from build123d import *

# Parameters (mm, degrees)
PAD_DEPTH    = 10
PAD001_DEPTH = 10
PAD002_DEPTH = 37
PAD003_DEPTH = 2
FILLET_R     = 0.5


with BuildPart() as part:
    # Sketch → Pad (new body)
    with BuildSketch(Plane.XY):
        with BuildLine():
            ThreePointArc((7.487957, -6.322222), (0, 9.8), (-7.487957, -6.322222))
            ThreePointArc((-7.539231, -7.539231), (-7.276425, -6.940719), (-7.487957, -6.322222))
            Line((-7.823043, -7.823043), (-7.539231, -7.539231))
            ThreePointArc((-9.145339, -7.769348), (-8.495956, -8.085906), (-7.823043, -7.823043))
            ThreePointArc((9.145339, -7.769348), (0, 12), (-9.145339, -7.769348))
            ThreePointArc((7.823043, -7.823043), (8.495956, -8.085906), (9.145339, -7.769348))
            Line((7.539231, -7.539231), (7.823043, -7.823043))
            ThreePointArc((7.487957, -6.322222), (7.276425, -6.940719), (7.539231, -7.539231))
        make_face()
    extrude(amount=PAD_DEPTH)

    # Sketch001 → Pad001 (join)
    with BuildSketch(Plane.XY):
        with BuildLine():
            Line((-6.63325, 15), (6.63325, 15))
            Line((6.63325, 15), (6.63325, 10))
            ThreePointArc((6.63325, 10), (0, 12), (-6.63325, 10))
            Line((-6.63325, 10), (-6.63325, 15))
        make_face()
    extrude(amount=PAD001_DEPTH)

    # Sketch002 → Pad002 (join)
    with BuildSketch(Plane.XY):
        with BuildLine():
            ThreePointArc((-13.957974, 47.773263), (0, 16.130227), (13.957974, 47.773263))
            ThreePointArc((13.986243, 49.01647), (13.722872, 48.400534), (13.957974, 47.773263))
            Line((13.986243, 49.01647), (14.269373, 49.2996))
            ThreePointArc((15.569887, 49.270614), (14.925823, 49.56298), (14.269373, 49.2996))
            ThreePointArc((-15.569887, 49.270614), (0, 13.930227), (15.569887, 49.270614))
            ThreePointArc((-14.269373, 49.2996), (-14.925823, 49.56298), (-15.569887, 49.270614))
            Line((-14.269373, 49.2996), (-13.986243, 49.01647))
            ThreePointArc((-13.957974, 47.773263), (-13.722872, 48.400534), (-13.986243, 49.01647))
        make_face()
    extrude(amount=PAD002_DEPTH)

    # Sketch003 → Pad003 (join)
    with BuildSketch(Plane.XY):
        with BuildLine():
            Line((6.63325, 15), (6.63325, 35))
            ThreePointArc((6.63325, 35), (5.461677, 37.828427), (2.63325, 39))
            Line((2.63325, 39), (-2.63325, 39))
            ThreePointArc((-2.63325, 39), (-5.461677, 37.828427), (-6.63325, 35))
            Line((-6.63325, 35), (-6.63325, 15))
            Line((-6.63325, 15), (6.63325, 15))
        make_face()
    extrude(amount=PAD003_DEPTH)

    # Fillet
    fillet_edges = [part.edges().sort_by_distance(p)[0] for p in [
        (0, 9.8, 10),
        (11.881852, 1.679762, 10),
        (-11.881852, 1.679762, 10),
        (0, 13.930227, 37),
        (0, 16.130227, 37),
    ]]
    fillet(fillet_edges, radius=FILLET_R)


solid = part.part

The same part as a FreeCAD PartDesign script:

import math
import FreeCAD as App
import Part
import Sketcher

V = App.Vector


def edges_at(feature, points):
    """Names of the edges that pass closest to the given points."""
    edges = feature.Shape.Edges
    near = lambda p: min(range(len(edges)), key=lambda i: edges[i].distToShape(Part.Vertex(*p))[0])
    return sorted({f"Edge{near(p) + 1}" for p in points})

doc = App.newDocument("Part")
body = doc.addObject("PartDesign::Body", "Body")

# Sketch on XY plane
sketch1 = body.newObject("Sketcher::SketchObject", "Sketch")
sketch1.AttachmentSupport = (doc.getObject("XY_Plane"), [""])
sketch1.MapMode = "FlatFace"
sketch1.addGeometry(Part.ArcOfCircle(Part.Circle(V(0, 0, 0), V(0, 0, 1), 9.8), math.radians(-40), math.radians(220)), False)
sketch1.addGeometry(Part.ArcOfCircle(Part.Circle(V(8.18, -6.9, 0), V(0, 0, 1), 0.9), math.radians(140), math.radians(225)), False)
sketch1.addGeometry(Part.LineSegment(V(7.54, -7.54, 0), V(7.82, -7.82, 0)), False)
sketch1.addGeometry(Part.ArcOfCircle(Part.Circle(V(8.46, -7.19, 0), V(0, 0, 1), 0.9), math.radians(-135), math.radians(-40)), False)
sketch1.addGeometry(Part.ArcOfCircle(Part.Circle(V(0, 0, 0), V(0, 0, 1), 12), math.radians(-40), math.radians(220)), False)
sketch1.addGeometry(Part.ArcOfCircle(Part.Circle(V(-8.46, -7.19, 0), V(0, 0, 1), 0.9), math.radians(-140), math.radians(-45)), False)
sketch1.addGeometry(Part.LineSegment(V(-7.82, -7.82, 0), V(-7.54, -7.54, 0)), False)
sketch1.addGeometry(Part.ArcOfCircle(Part.Circle(V(-8.18, -6.9, 0), V(0, 0, 1), 0.9), math.radians(-45), math.radians(40)), False)
sketch1.addConstraint(Sketcher.Constraint("Coincident", 0, 1, 1, 1))
sketch1.addConstraint(Sketcher.Constraint("Tangent", 1, 2, 2, 1))
sketch1.addConstraint(Sketcher.Constraint("Tangent", 2, 2, 3, 1))
sketch1.addConstraint(Sketcher.Constraint("Tangent", 3, 2, 4, 1))
sketch1.addConstraint(Sketcher.Constraint("Tangent", 4, 2, 5, 1))
sketch1.addConstraint(Sketcher.Constraint("Tangent", 5, 2, 6, 1))
sketch1.addConstraint(Sketcher.Constraint("Tangent", 6, 2, 7, 1))
sketch1.addConstraint(Sketcher.Constraint("Coincident", 7, 2, 0, 2))
sketch1.addConstraint(Sketcher.Constraint("Coincident", 0, 3, -1, 1))
sketch1.addConstraint(Sketcher.Constraint("Coincident", 4, 3, -1, 1))
sketch1.addConstraint(Sketcher.Constraint("Equal", 3, 5))
sketch1.addConstraint(Sketcher.Constraint("Equal", 1, 7))
sketch1.addConstraint(Sketcher.Constraint("Symmetric", 2, 2, 5, 2, -2))
sketch1.addConstraint(Sketcher.Constraint("Perpendicular", 2, 6))
sketch1.addConstraint(Sketcher.Constraint("Horizontal", 0, 1, 7, 2))
sketch1.addConstraint(Sketcher.Constraint("Radius", 4, 12.0))
sketch1.addConstraint(Sketcher.Constraint("Radius", 0, 9.8))
sketch1.addConstraint(Sketcher.Constraint("Radius", 3, 0.899999))
sketch1.addConstraint(Sketcher.Constraint("Radius", 1, 0.900002))
sketch1.addConstraint(Sketcher.Constraint("DistanceX", 3, 3, 3, 2, 0.6859))
sketch1.addConstraint(Sketcher.Constraint("DistanceY", 0, 1, -1, 1, 6.322222))
pad1 = body.newObject("PartDesign::Pad", "Pad")
pad1.Profile = sketch1
pad1.Length = 10

# Sketch on XY plane
sketch2 = body.newObject("Sketcher::SketchObject", "Sketch001")
sketch2.AttachmentSupport = (doc.getObject("XY_Plane"), [""])
sketch2.MapMode = "FlatFace"
sketch2.addGeometry(Part.LineSegment(V(7, 15, 0), V(-7, 15, 0)), False)
sketch2.addGeometry(Part.LineSegment(V(-7, 15, 0), V(-7, 10, 0)), False)
sketch2.addGeometry(Part.ArcOfCircle(Part.Circle(V(0, 0, 0), V(0, 0, 1), 12), math.radians(56), math.radians(124)), False)
sketch2.addGeometry(Part.LineSegment(V(7, 10, 0), V(7, 15, 0)), False)
sketch2.addConstraint(Sketcher.Constraint("Coincident", 0, 2, 1, 1))
sketch2.addConstraint(Sketcher.Constraint("Coincident", 1, 2, 2, 2))
sketch2.addConstraint(Sketcher.Constraint("Coincident", 2, 1, 3, 1))
sketch2.addConstraint(Sketcher.Constraint("Coincident", 3, 2, 0, 1))
sketch2.addConstraint(Sketcher.Constraint("Horizontal", 0))
sketch2.addConstraint(Sketcher.Constraint("Vertical", 1))
sketch2.addConstraint(Sketcher.Constraint("Vertical", 3))
sketch2.addConstraint(Sketcher.Constraint("Coincident", 2, 3, -1, 1))
sketch2.addConstraint(Sketcher.Constraint("Horizontal", 1, 2, 2, 1))
sketch2.addConstraint(Sketcher.Constraint("Radius", 2, 12.000001))
sketch2.addConstraint(Sketcher.Constraint("DistanceY", 1, 2, 1, 1, 5.0))
sketch2.addConstraint(Sketcher.Constraint("DistanceY", -1, 1, 0, 2, 15.0))
pad2 = body.newObject("PartDesign::Pad", "Pad001")
pad2.Profile = sketch2
pad2.Length = 10

# Sketch on XY plane
sketch3 = body.newObject("Sketcher::SketchObject", "Sketch002")
sketch3.AttachmentSupport = (doc.getObject("XY_Plane"), [""])
sketch3.MapMode = "FlatFace"
sketch3.addGeometry(Part.ArcOfCircle(Part.Circle(V(0, 35.03, 0), V(0, 0, 1), 18.9), math.radians(138), math.radians(402)), False)
sketch3.addGeometry(Part.ArcOfCircle(Part.Circle(V(-14.62, 48.38, 0), V(0, 0, 1), 0.9), math.radians(-42), math.radians(45)), False)
sketch3.addGeometry(Part.LineSegment(V(-13.99, 49.02, 0), V(-14.27, 49.3, 0)), False)
sketch3.addGeometry(Part.ArcOfCircle(Part.Circle(V(-14.91, 48.66, 0), V(0, 0, 1), 0.9), math.radians(45), math.radians(138)), False)
sketch3.addGeometry(Part.ArcOfCircle(Part.Circle(V(0, 35.03, 0), V(0, 0, 1), 21.1), math.radians(138), math.radians(402)), False)
sketch3.addGeometry(Part.ArcOfCircle(Part.Circle(V(14.91, 48.66, 0), V(0, 0, 1), 0.9), math.radians(42), math.radians(135)), False)
sketch3.addGeometry(Part.LineSegment(V(14.27, 49.3, 0), V(13.99, 49.02, 0)), False)
sketch3.addGeometry(Part.ArcOfCircle(Part.Circle(V(14.62, 48.38, 0), V(0, 0, 1), 0.9), math.radians(135), math.radians(222)), False)
sketch3.addConstraint(Sketcher.Constraint("Tangent", 0, 1, 1, 1))
sketch3.addConstraint(Sketcher.Constraint("Tangent", 1, 2, 2, 1))
sketch3.addConstraint(Sketcher.Constraint("Tangent", 2, 2, 3, 1))
sketch3.addConstraint(Sketcher.Constraint("Tangent", 3, 2, 4, 1))
sketch3.addConstraint(Sketcher.Constraint("Tangent", 4, 2, 5, 1))
sketch3.addConstraint(Sketcher.Constraint("Tangent", 5, 2, 6, 1))
sketch3.addConstraint(Sketcher.Constraint("Tangent", 6, 2, 7, 1))
sketch3.addConstraint(Sketcher.Constraint("Tangent", 7, 2, 0, 2))
sketch3.addConstraint(Sketcher.Constraint("Coincident", 4, 3, 0, 3))
sketch3.addConstraint(Sketcher.Constraint("Equal", 1, 3))
sketch3.addConstraint(Sketcher.Constraint("Equal", 3, 5))
sketch3.addConstraint(Sketcher.Constraint("Equal", 5, 7))
sketch3.addConstraint(Sketcher.Constraint("Symmetric", 3, 3, 5, 3, -2))
sketch3.addConstraint(Sketcher.Constraint("Perpendicular", 2, 6))
sketch3.addConstraint(Sketcher.Constraint("Horizontal", 1, 3, 7, 3))
sketch3.addConstraint(Sketcher.Constraint("Radius", 0, 18.9))
sketch3.addConstraint(Sketcher.Constraint("Radius", 1, 0.9))
sketch3.addConstraint(Sketcher.Constraint("Radius", 4, 21.1))
sketch3.addConstraint(Sketcher.Constraint("DistanceY", -1, 1, 2, 2, 49.2996))
sketch3.addConstraint(Sketcher.Constraint("DistanceX", 7, 2, 5, 2, 0.311399))
pad3 = body.newObject("PartDesign::Pad", "Pad002")
pad3.Profile = sketch3
pad3.Length = 37

# Sketch on XY plane
sketch4 = body.newObject("Sketcher::SketchObject", "Sketch003")
sketch4.AttachmentSupport = (doc.getObject("XY_Plane"), [""])
sketch4.MapMode = "FlatFace"
sketch4.addGeometry(Part.LineSegment(V(6.6, 15, 0), V(6.6, 35, 0)), False)
sketch4.addGeometry(Part.ArcOfCircle(Part.Circle(V(2.6, 35, 0), V(0, 0, 1), 4), math.radians(0), math.radians(90)), False)
sketch4.addGeometry(Part.LineSegment(V(2.6, 39, 0), V(-2.6, 39, 0)), False)
sketch4.addGeometry(Part.ArcOfCircle(Part.Circle(V(-2.6, 35, 0), V(0, 0, 1), 4), math.radians(90), math.radians(180)), False)
sketch4.addGeometry(Part.LineSegment(V(-6.6, 35, 0), V(-6.6, 15, 0)), False)
sketch4.addGeometry(Part.LineSegment(V(-6.6, 15, 0), V(6.6, 15, 0)), False)
sketch4.addConstraint(Sketcher.Constraint("Tangent", 0, 2, 1, 1))
sketch4.addConstraint(Sketcher.Constraint("Tangent", 1, 2, 2, 1))
sketch4.addConstraint(Sketcher.Constraint("Tangent", 2, 2, 3, 1))
sketch4.addConstraint(Sketcher.Constraint("Tangent", 3, 2, 4, 1))
sketch4.addConstraint(Sketcher.Constraint("Coincident", 4, 2, 5, 1))
sketch4.addConstraint(Sketcher.Constraint("Coincident", 5, 2, 0, 1))
sketch4.addConstraint(Sketcher.Constraint("Vertical", 0))
sketch4.addConstraint(Sketcher.Constraint("Horizontal", 2))
sketch4.addConstraint(Sketcher.Constraint("Vertical", 4))
sketch4.addConstraint(Sketcher.Constraint("Horizontal", 5))
sketch4.addConstraint(Sketcher.Constraint("Equal", 1, 3))
sketch4.addConstraint(Sketcher.Constraint("Radius", 1, 4.0))
sketch4.addConstraint(Sketcher.Constraint("DistanceY", 0, 1, 0, 2, 20.0))
sketch4.addConstraint(Sketcher.Constraint("DistanceY", -1, 1, 1, 3, 35.0))
sketch4.addConstraint(Sketcher.Constraint("DistanceX", 2, 2, 2, 1, 5.2665))
sketch4.addConstraint(Sketcher.Constraint("DistanceX", -1, 1, 1, 3, 2.63325))
pad4 = body.newObject("PartDesign::Pad", "Pad003")
pad4.Profile = sketch4
pad4.Length = 2
doc.recompute()

fillet = body.newObject("PartDesign::Fillet", "Fillet")
fillet.Base = (pad4, edges_at(pad4, [
    (0, 9.8, 10),
    (11.882, 1.68, 10),
    (-11.882, 1.68, 10),
    (0, 13.93, 37),
    (0, 16.13, 37),
]))
fillet.Radius = 0.5

doc.recompute()
